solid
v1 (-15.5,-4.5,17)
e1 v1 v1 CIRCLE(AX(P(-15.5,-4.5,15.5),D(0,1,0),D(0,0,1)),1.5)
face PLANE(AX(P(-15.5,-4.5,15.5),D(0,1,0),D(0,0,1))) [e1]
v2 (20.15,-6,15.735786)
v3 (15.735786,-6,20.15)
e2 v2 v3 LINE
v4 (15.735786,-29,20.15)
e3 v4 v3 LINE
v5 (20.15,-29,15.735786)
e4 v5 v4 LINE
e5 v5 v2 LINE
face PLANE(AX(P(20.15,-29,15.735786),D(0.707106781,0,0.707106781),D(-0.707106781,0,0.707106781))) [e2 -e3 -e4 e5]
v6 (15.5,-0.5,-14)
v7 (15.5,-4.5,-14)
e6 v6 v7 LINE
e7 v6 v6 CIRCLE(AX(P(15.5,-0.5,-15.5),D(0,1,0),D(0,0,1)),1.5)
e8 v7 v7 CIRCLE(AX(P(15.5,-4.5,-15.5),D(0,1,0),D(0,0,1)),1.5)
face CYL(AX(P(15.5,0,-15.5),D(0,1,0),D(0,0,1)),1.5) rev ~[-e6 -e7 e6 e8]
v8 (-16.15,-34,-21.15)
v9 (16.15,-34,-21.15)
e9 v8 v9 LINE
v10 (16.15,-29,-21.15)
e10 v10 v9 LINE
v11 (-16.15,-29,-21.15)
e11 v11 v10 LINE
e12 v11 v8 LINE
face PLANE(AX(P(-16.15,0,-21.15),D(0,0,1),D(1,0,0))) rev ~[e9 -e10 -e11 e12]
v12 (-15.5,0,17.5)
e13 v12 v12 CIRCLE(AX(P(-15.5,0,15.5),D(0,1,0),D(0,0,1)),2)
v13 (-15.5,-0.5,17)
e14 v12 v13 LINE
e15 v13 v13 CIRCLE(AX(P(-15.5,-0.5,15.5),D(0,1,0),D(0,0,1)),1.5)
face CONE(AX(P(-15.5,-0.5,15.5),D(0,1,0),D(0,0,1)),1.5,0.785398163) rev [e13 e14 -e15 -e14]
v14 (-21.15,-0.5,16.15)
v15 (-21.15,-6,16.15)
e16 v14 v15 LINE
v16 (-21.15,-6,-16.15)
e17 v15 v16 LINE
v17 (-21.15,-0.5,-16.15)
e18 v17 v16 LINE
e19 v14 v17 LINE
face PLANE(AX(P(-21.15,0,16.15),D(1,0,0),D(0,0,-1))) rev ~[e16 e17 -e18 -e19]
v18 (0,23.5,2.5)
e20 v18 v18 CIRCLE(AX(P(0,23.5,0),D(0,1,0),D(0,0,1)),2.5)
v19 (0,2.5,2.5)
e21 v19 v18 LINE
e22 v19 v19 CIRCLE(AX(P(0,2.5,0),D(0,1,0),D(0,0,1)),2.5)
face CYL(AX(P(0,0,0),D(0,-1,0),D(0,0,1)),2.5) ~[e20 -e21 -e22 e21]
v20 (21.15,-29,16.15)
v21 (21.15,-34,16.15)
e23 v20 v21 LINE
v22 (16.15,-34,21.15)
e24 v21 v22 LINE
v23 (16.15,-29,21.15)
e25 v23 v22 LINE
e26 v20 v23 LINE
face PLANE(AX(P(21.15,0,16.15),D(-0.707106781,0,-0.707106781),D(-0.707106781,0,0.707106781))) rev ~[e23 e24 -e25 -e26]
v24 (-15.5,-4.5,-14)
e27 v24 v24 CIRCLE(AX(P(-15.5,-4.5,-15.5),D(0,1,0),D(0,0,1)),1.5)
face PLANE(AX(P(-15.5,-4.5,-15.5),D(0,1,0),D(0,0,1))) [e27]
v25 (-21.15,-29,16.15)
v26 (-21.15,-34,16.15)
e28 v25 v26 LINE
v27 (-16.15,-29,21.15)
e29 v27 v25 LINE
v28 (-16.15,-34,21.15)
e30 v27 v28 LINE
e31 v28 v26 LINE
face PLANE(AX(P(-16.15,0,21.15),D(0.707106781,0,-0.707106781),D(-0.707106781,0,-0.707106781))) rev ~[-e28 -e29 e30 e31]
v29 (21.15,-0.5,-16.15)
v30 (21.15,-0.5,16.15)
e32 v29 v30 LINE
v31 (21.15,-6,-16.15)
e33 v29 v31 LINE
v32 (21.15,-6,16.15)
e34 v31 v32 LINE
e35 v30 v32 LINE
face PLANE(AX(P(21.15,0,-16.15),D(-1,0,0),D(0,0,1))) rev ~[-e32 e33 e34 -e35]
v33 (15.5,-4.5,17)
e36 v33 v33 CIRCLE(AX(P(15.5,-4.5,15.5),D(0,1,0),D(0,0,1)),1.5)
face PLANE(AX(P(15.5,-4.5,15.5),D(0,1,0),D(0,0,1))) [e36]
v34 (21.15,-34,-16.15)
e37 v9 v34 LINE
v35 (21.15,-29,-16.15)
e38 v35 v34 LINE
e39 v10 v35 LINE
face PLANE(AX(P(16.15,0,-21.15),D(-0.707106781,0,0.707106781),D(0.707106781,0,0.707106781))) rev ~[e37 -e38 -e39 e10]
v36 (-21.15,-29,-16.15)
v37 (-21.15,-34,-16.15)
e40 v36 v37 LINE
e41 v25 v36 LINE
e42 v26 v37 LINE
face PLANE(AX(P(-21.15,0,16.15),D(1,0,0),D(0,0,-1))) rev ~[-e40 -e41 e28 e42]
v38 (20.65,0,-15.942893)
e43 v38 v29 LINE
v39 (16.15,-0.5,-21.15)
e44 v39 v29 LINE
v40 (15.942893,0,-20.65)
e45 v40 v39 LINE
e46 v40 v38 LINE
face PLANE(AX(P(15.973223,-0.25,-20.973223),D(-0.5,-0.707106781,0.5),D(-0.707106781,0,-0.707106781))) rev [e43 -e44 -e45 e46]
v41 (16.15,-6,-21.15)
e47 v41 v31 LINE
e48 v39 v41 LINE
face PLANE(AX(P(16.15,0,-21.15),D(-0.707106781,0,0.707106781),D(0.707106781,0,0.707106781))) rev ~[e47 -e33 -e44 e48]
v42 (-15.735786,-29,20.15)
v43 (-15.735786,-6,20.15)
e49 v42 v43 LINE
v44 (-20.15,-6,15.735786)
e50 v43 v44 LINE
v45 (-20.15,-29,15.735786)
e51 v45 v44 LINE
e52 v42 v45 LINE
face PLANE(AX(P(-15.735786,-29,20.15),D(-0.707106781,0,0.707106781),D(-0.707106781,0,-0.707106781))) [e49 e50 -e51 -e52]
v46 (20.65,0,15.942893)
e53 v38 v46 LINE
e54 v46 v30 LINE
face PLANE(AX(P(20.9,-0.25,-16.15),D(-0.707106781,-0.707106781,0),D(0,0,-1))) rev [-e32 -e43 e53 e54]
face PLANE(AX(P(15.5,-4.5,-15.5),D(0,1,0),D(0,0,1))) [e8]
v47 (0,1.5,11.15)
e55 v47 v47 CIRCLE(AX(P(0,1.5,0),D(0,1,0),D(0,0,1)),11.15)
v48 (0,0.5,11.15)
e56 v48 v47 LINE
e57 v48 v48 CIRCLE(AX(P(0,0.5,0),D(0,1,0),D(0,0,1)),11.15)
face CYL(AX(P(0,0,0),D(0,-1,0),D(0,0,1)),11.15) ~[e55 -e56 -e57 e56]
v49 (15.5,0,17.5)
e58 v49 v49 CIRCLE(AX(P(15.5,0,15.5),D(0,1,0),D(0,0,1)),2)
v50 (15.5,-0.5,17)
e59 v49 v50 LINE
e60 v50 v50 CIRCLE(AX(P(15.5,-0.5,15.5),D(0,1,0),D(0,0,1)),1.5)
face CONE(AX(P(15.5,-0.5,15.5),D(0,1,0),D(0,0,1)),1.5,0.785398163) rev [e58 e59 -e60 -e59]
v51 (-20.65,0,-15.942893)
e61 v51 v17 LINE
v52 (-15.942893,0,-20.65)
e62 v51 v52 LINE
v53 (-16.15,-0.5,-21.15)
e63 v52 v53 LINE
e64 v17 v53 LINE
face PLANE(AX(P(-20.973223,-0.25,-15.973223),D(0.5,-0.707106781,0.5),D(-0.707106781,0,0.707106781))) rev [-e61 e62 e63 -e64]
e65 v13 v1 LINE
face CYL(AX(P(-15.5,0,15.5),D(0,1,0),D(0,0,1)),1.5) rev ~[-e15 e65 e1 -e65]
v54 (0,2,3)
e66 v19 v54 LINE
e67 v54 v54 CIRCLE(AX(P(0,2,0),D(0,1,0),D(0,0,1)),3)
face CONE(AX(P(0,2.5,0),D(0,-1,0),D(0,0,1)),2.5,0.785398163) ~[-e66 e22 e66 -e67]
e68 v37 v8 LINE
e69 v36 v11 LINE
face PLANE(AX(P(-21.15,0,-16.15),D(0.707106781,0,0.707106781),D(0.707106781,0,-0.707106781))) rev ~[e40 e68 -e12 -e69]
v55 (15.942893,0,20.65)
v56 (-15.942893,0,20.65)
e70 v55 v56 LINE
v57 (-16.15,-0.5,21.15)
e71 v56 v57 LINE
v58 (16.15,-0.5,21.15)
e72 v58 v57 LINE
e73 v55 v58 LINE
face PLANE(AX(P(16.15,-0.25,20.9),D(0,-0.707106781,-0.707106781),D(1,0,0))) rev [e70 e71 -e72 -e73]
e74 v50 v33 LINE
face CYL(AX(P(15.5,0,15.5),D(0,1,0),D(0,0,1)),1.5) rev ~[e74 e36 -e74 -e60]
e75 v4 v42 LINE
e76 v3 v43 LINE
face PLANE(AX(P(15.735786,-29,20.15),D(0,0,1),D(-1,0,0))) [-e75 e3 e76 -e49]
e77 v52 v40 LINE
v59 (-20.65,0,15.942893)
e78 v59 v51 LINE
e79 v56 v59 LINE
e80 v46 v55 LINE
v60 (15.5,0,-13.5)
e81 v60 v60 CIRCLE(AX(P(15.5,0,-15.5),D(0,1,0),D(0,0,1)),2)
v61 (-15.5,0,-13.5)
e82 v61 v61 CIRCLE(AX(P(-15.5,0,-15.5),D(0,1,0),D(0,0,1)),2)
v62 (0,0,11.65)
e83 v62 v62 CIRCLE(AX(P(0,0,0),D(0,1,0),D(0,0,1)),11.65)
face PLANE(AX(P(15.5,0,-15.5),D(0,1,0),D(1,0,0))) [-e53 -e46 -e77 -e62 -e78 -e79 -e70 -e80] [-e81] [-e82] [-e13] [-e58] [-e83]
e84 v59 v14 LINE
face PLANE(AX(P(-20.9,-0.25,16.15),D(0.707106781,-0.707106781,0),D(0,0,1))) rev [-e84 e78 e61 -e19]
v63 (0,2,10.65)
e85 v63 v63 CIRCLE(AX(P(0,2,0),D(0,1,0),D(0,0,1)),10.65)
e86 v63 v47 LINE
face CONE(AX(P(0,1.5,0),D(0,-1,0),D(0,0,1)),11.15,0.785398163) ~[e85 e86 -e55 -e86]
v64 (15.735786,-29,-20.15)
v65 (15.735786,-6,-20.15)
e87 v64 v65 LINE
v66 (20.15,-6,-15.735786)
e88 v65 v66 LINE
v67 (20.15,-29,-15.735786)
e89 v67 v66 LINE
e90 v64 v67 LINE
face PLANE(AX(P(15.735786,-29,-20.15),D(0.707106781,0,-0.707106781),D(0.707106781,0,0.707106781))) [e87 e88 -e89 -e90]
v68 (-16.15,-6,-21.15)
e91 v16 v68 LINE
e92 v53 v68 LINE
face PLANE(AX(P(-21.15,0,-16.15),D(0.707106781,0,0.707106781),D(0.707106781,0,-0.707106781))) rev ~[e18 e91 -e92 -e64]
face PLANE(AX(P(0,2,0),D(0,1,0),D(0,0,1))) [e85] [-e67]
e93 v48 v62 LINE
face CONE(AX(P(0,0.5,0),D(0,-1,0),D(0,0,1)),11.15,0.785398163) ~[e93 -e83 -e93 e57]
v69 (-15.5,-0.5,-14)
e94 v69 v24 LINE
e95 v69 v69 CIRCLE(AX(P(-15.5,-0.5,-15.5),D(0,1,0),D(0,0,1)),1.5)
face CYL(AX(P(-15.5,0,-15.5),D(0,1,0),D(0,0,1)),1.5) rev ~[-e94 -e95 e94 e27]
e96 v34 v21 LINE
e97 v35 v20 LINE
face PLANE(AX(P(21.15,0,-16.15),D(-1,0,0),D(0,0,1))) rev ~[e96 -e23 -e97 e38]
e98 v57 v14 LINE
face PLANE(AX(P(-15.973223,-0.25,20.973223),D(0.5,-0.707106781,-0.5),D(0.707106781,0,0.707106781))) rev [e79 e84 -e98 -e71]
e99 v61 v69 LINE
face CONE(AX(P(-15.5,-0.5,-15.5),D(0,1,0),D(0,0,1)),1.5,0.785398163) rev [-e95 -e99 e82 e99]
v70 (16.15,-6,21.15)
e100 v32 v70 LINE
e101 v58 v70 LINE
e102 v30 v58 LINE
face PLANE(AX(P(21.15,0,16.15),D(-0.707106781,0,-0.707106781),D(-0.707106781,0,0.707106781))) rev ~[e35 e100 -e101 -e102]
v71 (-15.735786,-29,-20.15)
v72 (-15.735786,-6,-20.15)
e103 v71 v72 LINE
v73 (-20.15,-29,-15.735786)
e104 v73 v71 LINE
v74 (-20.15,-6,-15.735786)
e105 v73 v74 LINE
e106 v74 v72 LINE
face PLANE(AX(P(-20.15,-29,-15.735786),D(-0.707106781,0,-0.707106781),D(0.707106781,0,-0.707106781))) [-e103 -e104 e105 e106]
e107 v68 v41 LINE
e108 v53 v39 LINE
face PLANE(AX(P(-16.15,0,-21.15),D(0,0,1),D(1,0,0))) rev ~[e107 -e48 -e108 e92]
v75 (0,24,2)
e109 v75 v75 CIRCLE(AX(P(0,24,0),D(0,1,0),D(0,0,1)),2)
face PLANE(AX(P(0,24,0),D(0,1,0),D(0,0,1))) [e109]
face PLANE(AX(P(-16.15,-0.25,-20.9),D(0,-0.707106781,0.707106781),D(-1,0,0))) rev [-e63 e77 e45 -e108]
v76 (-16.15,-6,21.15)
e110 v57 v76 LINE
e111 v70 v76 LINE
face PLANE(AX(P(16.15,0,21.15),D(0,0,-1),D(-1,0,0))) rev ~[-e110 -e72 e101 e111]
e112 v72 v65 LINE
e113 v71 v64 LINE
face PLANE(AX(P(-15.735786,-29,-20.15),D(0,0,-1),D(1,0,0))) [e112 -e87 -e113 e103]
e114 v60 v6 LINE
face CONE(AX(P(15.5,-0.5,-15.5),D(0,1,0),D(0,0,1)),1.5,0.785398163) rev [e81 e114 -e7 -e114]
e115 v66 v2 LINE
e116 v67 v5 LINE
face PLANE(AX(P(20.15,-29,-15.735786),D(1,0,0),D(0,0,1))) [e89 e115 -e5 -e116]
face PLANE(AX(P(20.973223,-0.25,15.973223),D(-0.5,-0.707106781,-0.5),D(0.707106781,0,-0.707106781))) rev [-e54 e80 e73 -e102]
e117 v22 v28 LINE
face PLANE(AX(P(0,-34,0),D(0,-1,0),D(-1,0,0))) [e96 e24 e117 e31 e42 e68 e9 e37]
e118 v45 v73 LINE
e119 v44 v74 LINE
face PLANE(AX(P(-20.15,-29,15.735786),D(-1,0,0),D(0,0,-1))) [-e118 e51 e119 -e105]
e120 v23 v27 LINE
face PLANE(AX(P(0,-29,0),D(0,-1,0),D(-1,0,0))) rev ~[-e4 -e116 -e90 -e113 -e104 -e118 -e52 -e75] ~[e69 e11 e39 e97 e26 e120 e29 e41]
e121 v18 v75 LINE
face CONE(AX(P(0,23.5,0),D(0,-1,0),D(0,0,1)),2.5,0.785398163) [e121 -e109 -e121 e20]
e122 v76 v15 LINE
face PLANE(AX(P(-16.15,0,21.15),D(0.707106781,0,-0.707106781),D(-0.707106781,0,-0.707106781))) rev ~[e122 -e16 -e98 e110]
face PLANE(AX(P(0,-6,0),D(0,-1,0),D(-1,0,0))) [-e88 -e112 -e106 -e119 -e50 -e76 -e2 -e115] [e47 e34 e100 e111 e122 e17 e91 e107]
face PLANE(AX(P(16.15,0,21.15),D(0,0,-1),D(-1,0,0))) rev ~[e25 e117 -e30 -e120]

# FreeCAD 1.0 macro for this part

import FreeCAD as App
import Part
import Sketcher
from FreeCAD import Vector


def edges_at(feature, points):
    """Names of the edges that pass closest to the given points."""
    edges = feature.Shape.Edges
    near = lambda p: min(range(len(edges)), key=lambda i: edges[i].distToShape(Part.Vertex(*p))[0])
    return sorted({f"Edge{near(p) + 1}" for p in points})

doc = App.newDocument("Part")
body = doc.addObject("PartDesign::Body", "Body")

# Sketch on XZ plane
sketch1 = doc.addObject("Sketcher::SketchObject", "Sketch")
body.addObject(sketch1)
sketch1.AttachmentSupport = (doc.XZ_Plane, [""])
sketch1.MapMode = "FlatFace"
sketch1.addGeometry([
    Part.LineSegment(Vector(-21, -16, 0), Vector(-21, 16, 0)),  # 0
    Part.LineSegment(Vector(-21, 16, 0), Vector(-16, 21, 0)),  # 1
    Part.LineSegment(Vector(-16, 21, 0), Vector(16, 21, 0)),  # 2
    Part.LineSegment(Vector(16, 21, 0), Vector(21, 16, 0)),  # 3
    Part.LineSegment(Vector(21, 16, 0), Vector(21, -16, 0)),  # 4
    Part.LineSegment(Vector(21, -16, 0), Vector(16, -21, 0)),  # 5
    Part.LineSegment(Vector(16, -21, 0), Vector(-16, -21, 0)),  # 6
    Part.LineSegment(Vector(-16, -21, 0), Vector(-21, -16, 0)),  # 7
], False)
sketch1.addConstraint([
    Sketcher.Constraint("Coincident", 0, 2, 1, 1),
    Sketcher.Constraint("Coincident", 1, 2, 2, 1),
    Sketcher.Constraint("Coincident", 2, 2, 3, 1),
    Sketcher.Constraint("Coincident", 3, 2, 4, 1),
    Sketcher.Constraint("Coincident", 4, 2, 5, 1),
    Sketcher.Constraint("Coincident", 5, 2, 6, 1),
    Sketcher.Constraint("Coincident", 6, 2, 7, 1),
    Sketcher.Constraint("Coincident", 7, 2, 0, 1),
    Sketcher.Constraint("Vertical", 0),
    Sketcher.Constraint("Horizontal", 2),
    Sketcher.Constraint("Vertical", 4),
    Sketcher.Constraint("Horizontal", 6),
    Sketcher.Constraint("Symmetric", 0, 2, 4, 2, -1, 1),
    Sketcher.Constraint("Symmetric", 1, 2, 5, 2, -1, 1),
    Sketcher.Constraint("Perpendicular", 1, 3),
    Sketcher.Constraint("Perpendicular", 5, 7),
    Sketcher.Constraint("Horizontal", 0, 2, 3, 2),
    Sketcher.Constraint("Horizontal", 4, 2, 7, 2),
    Sketcher.Constraint("Vertical", 2, 2, 5, 2),
    Sketcher.Constraint("Equal", 6, 0),
    Sketcher.Constraint("DistanceX", 2, 1, 2, 2, 32.3),
    Sketcher.Constraint("DistanceX", 0, 2, 1, 2, 5.0),
])
pad1 = doc.addObject("PartDesign::Pad", "Pad")
body.addObject(pad1)
pad1.Profile = sketch1
pad1.Length = 34

# Sketch on XZ plane
sketch2 = doc.addObject("Sketcher::SketchObject", "Sketch001")
body.addObject(sketch2)
sketch2.AttachmentSupport = (doc.XZ_Plane, [""])
sketch2.MapMode = "FlatFace"
sketch2.addGeometry([
    Part.Circle(Vector(-15.5, -15.5, 0), Vector(0, 0, 1), 1.5),
    Part.Circle(Vector(-15.5, 15.5, 0), Vector(0, 0, 1), 1.5),
    Part.Circle(Vector(15.5, -15.5, 0), Vector(0, 0, 1), 1.5),
    Part.Circle(Vector(15.5, 15.5, 0), Vector(0, 0, 1), 1.5),
], False)
sketch2.addConstraint([
    Sketcher.Constraint("Equal", 0, 1),
    Sketcher.Constraint("Equal", 1, 2),
    Sketcher.Constraint("Equal", 2, 3),
    Sketcher.Constraint("Symmetric", 1, 3, 2, 3, -1, 1),
    Sketcher.Constraint("Symmetric", 0, 3, 3, 3, -1, 1),
    Sketcher.Constraint("Symmetric", 0, 3, 2, 3, -2),
    Sketcher.Constraint("Diameter", 0, 3.0),
    Sketcher.Constraint("DistanceY", 0, 3, 1, 3, 31.0),
    Sketcher.Constraint("DistanceX", 0, 3, 2, 3, 31.0),
])
pocket1 = doc.addObject("PartDesign::Pocket", "Pocket")
body.addObject(pocket1)
pocket1.Profile = sketch2
pocket1.Length = 4.5
pocket1.Reversed = True

# Sketch on XZ plane
sketch3 = doc.addObject("Sketcher::SketchObject", "Sketch002")
body.addObject(sketch3)
sketch3.AttachmentSupport = (doc.XZ_Plane, [""])
sketch3.MapMode = "FlatFace"
sketch3.addGeometry([
    Part.Circle(Vector(0, 0, 0), Vector(0, 0, 1), 11.2),
    Part.Circle(Vector(0, 0, 0), Vector(0, 0, 1), 2.5),
], False)
sketch3.addConstraint([
    Sketcher.Constraint("Coincident", 0, 3, -1, 1),
    Sketcher.Constraint("Coincident", 1, 3, -1, 1),
    Sketcher.Constraint("Diameter", 1, 5.0),
    Sketcher.Constraint("Diameter", 0, 22.3),
])
pad2 = doc.addObject("PartDesign::Pad", "Pad001")
body.addObject(pad2)
pad2.Profile = sketch3
pad2.Length = 2
pad2.Reversed = True

# Sketch on XZ plane
sketch4 = doc.addObject("Sketcher::SketchObject", "Sketch003")
body.addObject(sketch4)
sketch4.AttachmentSupport = (doc.XZ_Plane, [""])
sketch4.MapMode = "FlatFace"
sketch4.addGeometry(Part.Circle(Vector(0, 0, 0), Vector(0, 0, 1), 2.5), False)
sketch4.addConstraint([
    Sketcher.Constraint("Coincident", 0, 3, -1, 1),
    Sketcher.Constraint("Diameter", 0, 5.0),
])
pad3 = doc.addObject("PartDesign::Pad", "Pad002")
body.addObject(pad3)
pad3.Profile = sketch4
pad3.Length = 24
pad3.Reversed = True
doc.recompute()

chamfer = doc.addObject("PartDesign::Chamfer", "Chamfer")
body.addObject(chamfer)
chamfer.Base = (pad3, edges_at(pad3, [
    (21.15, 0, 0),
    (18.65, 0, 18.65),
    (0, 0, 21.15),
    (-18.65, 0, 18.65),
    (-21.15, 0, 0),
    (-15.5, 0, -17),
    (-15.5, 0, 14),
    (15.5, 0, -17),
    (15.5, 0, 14),
    (0, 2, -2.5),
    (0, 0, -11.15),
    (0, 2, -11.15),
    (0, 24, -2.5),
    (-18.65, 0, -18.65),
    (0, 0, -21.15),
    (18.65, 0, -18.65),
]))
chamfer.Size = 0.5

# Sketch on XZ plane
sketch5 = doc.addObject("Sketcher::SketchObject", "Sketch004")
body.addObject(sketch5)
sketch5.AttachmentSupport = (doc.XZ_Plane, [""])
sketch5.MapMode = "FlatFace"
sketch5.AttachmentOffset = App.Placement(Vector(0, 0, 29), App.Rotation())
sketch5.addGeometry([
    Part.LineSegment(Vector(-21, 16, 0), Vector(-21, -16, 0)),  # 0
    Part.LineSegment(Vector(-21, -16, 0), Vector(-16, -21, 0)),  # 1
    Part.LineSegment(Vector(-16, -21, 0), Vector(16, -21, 0)),  # 2
    Part.LineSegment(Vector(16, -21, 0), Vector(21, -16, 0)),  # 3
    Part.LineSegment(Vector(21, -16, 0), Vector(21, 16, 0)),  # 4
    Part.LineSegment(Vector(21, 16, 0), Vector(16, 21, 0)),  # 5
    Part.LineSegment(Vector(16, 21, 0), Vector(-16, 21, 0)),  # 6
    Part.LineSegment(Vector(-16, 21, 0), Vector(-21, 16, 0)),  # 7
    Part.LineSegment(Vector(-20, -16, 0), Vector(-20, 16, 0)),  # 8
    Part.LineSegment(Vector(-20, 16, 0), Vector(-16, 20, 0)),  # 9
    Part.LineSegment(Vector(-16, 20, 0), Vector(16, 20, 0)),  # 10
    Part.LineSegment(Vector(16, 20, 0), Vector(20, 16, 0)),  # 11
    Part.LineSegment(Vector(20, 16, 0), Vector(20, -16, 0)),  # 12
    Part.LineSegment(Vector(20, -16, 0), Vector(16, -20, 0)),  # 13
    Part.LineSegment(Vector(16, -20, 0), Vector(-16, -20, 0)),  # 14
    Part.LineSegment(Vector(-16, -20, 0), Vector(-20, -16, 0)),  # 15
], False)
sketch5.addConstraint([
    Sketcher.Constraint("Coincident", 0, 2, 1, 1),
    Sketcher.Constraint("Coincident", 1, 2, 2, 1),
    Sketcher.Constraint("Coincident", 2, 2, 3, 1),
    Sketcher.Constraint("Coincident", 3, 2, 4, 1),
    Sketcher.Constraint("Coincident", 4, 2, 5, 1),
    Sketcher.Constraint("Coincident", 5, 2, 6, 1),
    Sketcher.Constraint("Coincident", 6, 2, 7, 1),
    Sketcher.Constraint("Coincident", 7, 2, 0, 1),
    Sketcher.Constraint("Coincident", 8, 2, 9, 1),
    Sketcher.Constraint("Coincident", 9, 2, 10, 1),
    Sketcher.Constraint("Coincident", 10, 2, 11, 1),
    Sketcher.Constraint("Coincident", 11, 2, 12, 1),
    Sketcher.Constraint("Coincident", 12, 2, 13, 1),
    Sketcher.Constraint("Coincident", 13, 2, 14, 1),
    Sketcher.Constraint("Coincident", 14, 2, 15, 1),
    Sketcher.Constraint("Coincident", 15, 2, 8, 1),
    Sketcher.Constraint("Vertical", 0),
    Sketcher.Constraint("Horizontal", 2),
    Sketcher.Constraint("Vertical", 4),
    Sketcher.Constraint("Horizontal", 6),
    Sketcher.Constraint("Vertical", 8),
    Sketcher.Constraint("Horizontal", 10),
    Sketcher.Constraint("Vertical", 12),
    Sketcher.Constraint("Horizontal", 14),
    Sketcher.Constraint("Symmetric", 0, 2, 4, 2, -1, 1),
    Sketcher.Constraint("Symmetric", 1, 2, 5, 2, -1, 1),
    Sketcher.Constraint("Symmetric", 8, 2, 12, 2, -1, 1),
    Sketcher.Constraint("Symmetric", 9, 2, 13, 2, -1, 1),
    Sketcher.Constraint("Perpendicular", 1, 3),
    Sketcher.Constraint("Perpendicular", 5, 7),
    Sketcher.Constraint("Parallel", 7, 9),
    Sketcher.Constraint("Perpendicular", 9, 11),
    Sketcher.Constraint("Perpendicular", 13, 15),
    Sketcher.Constraint("Horizontal", 0, 2, 3, 2),
    Sketcher.Constraint("Horizontal", 4, 2, 7, 2),
    Sketcher.Constraint("Horizontal", 8, 2, 11, 2),
    Sketcher.Constraint("Horizontal", 12, 2, 15, 2),
    Sketcher.Constraint("Vertical", 2, 2, 5, 2),
    Sketcher.Constraint("Equal", 6, 0),
    Sketcher.Constraint("Equal", 14, 8),
    Sketcher.Constraint("DistanceX", 2, 1, 2, 2, 32.3),
    Sketcher.Constraint("DistanceX", 0, 2, 1, 2, 5.0),
    Sketcher.Constraint("DistanceX", 7, 2, 8, 2, 1.0),
    Sketcher.Constraint("Distance", 9, 6.242641),
])
pocket2 = doc.addObject("PartDesign::Pocket", "Pocket001")
body.addObject(pocket2)
pocket2.Profile = sketch5
pocket2.Length = 23

doc.recompute()
